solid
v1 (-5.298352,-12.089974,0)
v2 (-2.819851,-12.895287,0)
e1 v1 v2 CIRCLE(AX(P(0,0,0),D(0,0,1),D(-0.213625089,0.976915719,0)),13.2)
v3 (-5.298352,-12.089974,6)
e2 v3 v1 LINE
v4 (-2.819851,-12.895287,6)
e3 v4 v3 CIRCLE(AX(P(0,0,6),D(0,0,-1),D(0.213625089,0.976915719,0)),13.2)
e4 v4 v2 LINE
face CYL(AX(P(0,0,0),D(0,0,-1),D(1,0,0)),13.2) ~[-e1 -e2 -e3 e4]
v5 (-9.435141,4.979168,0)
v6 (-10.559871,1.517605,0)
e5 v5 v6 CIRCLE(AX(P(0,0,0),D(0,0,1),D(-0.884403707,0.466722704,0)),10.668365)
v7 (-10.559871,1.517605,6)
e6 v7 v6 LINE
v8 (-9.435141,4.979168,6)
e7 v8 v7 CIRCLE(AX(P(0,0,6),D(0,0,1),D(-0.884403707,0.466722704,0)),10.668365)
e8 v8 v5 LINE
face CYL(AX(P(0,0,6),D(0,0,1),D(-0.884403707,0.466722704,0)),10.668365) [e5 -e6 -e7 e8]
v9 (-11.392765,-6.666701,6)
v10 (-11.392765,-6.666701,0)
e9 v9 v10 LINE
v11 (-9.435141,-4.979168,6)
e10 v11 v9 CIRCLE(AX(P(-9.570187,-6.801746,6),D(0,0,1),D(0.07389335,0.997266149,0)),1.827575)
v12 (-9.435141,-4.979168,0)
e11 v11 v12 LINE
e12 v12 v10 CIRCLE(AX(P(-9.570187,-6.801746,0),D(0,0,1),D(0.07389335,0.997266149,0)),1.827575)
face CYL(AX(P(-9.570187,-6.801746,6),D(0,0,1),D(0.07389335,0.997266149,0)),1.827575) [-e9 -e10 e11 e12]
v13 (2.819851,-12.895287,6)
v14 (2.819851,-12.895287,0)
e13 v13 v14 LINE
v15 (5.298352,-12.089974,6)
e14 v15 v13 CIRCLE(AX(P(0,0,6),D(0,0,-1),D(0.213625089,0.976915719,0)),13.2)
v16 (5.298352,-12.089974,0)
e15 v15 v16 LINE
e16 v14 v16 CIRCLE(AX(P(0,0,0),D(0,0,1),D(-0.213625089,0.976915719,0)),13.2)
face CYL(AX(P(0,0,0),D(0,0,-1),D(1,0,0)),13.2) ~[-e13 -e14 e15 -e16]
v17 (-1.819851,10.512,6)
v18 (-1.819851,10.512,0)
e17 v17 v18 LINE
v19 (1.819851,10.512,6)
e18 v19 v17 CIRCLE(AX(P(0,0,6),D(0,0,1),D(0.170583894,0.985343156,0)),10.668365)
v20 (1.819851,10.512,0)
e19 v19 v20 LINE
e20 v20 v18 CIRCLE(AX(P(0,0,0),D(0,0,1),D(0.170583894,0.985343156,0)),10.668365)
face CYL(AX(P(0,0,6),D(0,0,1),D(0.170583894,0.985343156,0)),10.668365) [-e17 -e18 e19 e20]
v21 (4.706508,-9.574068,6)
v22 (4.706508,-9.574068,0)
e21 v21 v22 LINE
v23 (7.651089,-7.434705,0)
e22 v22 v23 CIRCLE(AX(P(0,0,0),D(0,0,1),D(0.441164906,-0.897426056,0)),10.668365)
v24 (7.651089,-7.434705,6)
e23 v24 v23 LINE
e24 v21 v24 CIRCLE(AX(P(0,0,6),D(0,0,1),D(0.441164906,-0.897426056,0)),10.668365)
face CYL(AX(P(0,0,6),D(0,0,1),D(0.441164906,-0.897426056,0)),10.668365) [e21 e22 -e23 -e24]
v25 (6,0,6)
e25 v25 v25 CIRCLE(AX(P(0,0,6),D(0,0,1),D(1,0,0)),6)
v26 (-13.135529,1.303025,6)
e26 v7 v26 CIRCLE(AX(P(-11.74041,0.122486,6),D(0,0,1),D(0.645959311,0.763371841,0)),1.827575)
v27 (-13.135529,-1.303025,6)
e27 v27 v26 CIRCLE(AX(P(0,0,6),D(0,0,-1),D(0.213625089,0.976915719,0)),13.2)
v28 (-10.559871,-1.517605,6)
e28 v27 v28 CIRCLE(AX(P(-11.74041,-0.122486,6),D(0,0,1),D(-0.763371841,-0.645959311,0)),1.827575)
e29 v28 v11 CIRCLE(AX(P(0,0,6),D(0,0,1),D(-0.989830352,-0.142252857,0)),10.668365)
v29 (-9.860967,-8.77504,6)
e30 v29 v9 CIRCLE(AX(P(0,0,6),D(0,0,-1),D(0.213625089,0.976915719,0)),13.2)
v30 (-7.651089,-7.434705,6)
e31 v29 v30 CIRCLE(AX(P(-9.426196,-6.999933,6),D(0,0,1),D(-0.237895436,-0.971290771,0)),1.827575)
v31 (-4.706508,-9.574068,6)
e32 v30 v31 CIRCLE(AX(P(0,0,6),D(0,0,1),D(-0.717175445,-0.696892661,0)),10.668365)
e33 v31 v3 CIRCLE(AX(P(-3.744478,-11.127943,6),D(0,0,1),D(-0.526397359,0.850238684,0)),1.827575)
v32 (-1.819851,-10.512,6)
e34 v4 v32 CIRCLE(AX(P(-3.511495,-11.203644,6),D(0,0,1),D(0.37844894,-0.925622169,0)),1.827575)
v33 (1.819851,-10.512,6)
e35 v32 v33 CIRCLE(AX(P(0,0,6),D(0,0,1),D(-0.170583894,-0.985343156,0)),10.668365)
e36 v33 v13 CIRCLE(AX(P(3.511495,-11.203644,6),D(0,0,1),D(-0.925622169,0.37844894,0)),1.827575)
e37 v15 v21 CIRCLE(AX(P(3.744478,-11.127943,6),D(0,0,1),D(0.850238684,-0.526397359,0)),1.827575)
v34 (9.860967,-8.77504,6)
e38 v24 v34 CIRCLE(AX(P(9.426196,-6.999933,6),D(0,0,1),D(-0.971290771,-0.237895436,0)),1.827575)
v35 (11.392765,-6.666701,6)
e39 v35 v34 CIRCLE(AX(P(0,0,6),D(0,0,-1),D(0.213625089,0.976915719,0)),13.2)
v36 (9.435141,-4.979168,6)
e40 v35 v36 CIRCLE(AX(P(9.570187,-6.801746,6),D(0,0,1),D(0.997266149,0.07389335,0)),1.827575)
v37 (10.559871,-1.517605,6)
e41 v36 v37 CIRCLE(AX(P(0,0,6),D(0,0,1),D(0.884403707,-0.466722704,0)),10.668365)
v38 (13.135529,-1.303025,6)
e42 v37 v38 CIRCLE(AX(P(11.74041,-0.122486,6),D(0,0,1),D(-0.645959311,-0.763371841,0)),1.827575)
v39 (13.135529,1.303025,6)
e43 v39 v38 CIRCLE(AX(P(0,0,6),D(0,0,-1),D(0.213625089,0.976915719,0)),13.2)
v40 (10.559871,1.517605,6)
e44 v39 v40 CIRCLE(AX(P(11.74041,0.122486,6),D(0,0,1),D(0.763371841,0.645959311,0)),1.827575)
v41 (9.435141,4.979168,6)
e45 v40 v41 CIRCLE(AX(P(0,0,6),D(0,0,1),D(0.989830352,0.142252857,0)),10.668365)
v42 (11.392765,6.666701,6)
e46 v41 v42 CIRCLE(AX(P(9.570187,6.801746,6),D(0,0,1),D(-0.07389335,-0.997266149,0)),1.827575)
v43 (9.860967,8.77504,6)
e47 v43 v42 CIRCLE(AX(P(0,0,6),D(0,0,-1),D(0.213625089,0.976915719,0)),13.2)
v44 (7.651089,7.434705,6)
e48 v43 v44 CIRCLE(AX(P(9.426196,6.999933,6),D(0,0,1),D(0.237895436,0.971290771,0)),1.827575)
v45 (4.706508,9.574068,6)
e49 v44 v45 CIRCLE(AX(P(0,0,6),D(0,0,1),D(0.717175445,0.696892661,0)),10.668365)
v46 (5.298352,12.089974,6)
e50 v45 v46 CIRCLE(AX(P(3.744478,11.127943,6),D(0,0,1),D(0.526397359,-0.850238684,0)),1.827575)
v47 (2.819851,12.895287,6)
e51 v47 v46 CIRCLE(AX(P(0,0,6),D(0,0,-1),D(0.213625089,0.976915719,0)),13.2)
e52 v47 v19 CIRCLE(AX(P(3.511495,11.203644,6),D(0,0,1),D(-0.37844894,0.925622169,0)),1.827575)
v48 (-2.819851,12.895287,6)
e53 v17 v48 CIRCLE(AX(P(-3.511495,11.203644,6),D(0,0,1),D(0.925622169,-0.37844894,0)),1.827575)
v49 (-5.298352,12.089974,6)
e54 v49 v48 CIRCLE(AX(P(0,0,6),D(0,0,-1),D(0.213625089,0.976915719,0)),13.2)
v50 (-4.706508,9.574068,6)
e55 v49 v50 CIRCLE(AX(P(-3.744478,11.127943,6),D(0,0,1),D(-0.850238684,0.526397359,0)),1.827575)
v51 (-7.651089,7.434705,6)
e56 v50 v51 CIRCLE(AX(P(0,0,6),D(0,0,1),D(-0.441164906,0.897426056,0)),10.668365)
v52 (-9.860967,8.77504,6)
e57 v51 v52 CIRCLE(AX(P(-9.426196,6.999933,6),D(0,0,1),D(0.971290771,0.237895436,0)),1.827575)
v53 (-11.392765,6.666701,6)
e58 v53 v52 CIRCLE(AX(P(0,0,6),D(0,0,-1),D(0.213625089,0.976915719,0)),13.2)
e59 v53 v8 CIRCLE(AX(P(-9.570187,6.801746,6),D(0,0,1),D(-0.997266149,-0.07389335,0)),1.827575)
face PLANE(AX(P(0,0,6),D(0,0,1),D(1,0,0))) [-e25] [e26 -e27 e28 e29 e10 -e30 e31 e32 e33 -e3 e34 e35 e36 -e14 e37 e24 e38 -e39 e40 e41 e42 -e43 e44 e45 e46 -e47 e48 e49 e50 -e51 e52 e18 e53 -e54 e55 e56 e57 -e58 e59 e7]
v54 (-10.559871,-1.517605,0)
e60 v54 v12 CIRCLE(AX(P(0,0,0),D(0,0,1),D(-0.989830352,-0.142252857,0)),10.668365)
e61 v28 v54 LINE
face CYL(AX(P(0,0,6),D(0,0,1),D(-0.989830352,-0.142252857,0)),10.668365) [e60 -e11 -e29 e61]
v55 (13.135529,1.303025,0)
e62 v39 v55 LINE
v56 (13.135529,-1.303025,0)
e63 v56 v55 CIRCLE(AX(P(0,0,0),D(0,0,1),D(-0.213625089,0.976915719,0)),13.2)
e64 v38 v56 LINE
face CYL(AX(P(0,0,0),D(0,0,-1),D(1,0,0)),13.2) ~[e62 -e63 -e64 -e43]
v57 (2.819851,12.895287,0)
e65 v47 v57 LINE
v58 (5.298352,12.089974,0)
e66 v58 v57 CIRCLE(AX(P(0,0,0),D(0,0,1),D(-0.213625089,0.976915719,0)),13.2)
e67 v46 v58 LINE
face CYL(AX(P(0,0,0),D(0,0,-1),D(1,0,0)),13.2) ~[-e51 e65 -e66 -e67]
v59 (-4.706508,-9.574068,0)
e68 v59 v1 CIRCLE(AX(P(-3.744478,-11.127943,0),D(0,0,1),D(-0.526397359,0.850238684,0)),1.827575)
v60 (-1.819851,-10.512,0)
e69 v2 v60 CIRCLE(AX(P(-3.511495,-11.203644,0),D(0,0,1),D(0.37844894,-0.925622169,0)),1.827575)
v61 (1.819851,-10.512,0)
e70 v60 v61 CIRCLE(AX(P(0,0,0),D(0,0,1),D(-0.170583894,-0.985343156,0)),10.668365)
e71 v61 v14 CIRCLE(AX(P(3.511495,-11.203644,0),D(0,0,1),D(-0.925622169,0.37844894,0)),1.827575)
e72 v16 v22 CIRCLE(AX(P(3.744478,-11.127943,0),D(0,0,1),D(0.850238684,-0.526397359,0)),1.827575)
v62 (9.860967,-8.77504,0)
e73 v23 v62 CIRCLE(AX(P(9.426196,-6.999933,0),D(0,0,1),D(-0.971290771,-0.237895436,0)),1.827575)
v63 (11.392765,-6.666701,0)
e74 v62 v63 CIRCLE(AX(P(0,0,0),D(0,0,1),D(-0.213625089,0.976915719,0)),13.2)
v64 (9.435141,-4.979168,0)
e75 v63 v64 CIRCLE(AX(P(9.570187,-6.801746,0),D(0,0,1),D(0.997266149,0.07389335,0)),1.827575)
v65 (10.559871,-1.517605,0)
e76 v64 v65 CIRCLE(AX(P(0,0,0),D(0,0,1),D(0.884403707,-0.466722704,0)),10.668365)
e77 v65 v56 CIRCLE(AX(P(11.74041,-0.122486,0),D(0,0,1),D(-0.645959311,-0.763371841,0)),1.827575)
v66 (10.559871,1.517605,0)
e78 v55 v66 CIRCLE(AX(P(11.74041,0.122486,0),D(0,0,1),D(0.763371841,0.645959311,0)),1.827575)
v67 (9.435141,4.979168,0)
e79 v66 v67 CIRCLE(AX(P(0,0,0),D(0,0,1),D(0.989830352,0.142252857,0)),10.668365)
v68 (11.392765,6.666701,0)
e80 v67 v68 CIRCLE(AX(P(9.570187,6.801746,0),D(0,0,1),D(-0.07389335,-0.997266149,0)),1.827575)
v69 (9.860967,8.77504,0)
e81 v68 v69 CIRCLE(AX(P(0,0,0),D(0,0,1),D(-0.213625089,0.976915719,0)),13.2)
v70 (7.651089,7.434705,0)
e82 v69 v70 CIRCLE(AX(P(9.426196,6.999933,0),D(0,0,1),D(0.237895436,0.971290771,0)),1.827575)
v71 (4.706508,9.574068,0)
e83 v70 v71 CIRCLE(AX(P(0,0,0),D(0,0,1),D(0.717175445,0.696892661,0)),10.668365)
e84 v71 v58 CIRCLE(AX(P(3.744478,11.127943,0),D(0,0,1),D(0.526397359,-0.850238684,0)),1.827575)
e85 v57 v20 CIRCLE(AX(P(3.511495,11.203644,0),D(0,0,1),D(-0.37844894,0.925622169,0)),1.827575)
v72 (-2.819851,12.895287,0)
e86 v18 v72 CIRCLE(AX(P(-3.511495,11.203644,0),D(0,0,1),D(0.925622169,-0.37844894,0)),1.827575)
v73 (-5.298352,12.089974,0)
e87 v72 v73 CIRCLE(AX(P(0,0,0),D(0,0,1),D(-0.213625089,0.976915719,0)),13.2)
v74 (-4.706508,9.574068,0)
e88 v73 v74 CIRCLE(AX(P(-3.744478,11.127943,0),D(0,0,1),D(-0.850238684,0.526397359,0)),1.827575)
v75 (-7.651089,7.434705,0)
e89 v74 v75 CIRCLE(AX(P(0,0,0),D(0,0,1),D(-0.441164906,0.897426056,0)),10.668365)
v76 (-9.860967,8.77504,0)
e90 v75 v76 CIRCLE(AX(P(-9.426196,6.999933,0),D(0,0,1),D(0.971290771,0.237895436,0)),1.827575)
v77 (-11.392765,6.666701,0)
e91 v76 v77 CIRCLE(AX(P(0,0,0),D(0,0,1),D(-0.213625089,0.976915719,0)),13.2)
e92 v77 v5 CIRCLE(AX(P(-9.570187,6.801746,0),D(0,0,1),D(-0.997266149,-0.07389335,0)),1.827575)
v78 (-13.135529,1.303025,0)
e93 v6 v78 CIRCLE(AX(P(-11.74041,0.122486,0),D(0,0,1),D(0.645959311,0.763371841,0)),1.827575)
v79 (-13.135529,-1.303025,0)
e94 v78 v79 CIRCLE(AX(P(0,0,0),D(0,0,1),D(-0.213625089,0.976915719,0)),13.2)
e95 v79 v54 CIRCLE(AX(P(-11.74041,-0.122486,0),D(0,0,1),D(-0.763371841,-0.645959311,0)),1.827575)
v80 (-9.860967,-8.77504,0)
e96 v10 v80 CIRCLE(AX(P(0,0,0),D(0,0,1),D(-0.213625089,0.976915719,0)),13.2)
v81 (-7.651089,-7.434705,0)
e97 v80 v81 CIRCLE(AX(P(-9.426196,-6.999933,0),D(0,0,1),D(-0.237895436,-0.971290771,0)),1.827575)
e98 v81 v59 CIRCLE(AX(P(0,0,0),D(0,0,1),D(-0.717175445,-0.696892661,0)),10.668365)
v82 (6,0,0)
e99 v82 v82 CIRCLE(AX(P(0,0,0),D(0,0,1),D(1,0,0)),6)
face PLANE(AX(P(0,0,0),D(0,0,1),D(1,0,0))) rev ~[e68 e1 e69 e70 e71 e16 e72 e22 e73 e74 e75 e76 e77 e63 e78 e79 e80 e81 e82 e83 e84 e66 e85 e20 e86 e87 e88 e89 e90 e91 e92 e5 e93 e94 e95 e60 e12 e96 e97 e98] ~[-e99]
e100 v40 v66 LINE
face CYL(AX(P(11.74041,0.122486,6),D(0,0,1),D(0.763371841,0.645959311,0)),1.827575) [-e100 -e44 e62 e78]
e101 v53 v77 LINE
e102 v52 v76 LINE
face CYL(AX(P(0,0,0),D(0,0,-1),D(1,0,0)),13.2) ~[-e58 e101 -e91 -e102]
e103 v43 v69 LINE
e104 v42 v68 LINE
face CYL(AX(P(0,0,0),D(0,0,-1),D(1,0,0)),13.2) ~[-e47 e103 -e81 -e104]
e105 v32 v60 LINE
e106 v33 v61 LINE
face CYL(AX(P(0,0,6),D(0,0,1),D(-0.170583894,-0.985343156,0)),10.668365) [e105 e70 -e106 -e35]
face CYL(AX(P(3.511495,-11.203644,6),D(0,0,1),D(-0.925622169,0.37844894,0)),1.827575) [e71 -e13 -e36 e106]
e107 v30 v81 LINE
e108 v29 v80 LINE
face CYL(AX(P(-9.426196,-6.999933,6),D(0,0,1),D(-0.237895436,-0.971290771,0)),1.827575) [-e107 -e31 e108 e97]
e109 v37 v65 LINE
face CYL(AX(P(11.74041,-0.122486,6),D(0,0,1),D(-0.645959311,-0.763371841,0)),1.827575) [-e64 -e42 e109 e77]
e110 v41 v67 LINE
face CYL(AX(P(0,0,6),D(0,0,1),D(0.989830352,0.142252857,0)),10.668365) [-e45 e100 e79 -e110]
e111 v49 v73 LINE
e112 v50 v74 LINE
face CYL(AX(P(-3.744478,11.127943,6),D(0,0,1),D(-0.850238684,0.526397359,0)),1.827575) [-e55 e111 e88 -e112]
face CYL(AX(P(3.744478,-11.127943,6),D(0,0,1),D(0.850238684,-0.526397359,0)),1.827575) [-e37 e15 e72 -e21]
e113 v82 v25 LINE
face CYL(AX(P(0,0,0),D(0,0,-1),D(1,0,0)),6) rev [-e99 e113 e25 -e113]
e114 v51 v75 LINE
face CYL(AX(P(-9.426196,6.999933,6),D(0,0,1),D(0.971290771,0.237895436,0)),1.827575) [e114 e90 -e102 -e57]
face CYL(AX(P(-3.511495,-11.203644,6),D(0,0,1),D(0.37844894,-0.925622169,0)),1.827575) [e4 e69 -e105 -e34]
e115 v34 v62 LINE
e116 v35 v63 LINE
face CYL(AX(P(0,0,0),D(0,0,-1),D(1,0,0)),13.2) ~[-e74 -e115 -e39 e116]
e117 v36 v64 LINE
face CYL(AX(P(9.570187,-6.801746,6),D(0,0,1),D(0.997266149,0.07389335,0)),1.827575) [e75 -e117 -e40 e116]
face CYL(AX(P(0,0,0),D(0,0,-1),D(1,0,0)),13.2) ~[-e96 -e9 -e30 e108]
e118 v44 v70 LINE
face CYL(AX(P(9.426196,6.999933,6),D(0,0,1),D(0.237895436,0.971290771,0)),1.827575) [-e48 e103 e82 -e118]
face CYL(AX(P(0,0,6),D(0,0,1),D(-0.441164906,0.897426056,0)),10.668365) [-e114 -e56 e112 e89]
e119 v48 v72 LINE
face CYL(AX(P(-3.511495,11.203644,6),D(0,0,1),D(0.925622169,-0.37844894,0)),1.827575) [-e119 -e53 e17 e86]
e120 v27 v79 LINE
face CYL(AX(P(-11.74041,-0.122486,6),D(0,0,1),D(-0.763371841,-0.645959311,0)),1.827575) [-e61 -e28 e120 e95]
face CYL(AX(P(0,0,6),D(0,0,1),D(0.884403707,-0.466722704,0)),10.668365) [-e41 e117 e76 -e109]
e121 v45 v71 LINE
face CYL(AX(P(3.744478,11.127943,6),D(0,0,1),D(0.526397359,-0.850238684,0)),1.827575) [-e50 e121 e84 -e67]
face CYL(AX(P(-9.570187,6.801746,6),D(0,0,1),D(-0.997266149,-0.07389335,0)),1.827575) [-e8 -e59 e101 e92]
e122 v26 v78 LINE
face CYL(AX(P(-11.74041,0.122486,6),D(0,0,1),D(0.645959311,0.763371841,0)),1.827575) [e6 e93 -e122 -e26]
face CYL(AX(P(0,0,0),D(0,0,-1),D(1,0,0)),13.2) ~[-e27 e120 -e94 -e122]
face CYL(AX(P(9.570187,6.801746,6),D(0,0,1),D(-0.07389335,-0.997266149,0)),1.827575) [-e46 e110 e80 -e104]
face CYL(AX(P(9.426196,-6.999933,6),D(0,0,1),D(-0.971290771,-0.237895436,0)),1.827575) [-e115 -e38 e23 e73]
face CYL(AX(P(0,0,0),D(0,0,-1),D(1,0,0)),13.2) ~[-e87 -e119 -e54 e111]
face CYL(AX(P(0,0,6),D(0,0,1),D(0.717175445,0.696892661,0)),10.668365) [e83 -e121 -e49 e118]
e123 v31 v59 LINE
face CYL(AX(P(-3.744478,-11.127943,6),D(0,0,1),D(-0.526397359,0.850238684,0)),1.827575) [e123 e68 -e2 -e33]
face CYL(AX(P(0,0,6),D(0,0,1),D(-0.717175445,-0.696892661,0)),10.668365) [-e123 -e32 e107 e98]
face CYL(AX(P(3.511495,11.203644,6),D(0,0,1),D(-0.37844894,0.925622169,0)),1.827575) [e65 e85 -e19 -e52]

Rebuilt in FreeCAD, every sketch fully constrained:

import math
import FreeCAD as App
import Part
import Sketcher

V = App.Vector
Q = App.Units.Quantity

doc = App.newDocument("Part")
body = doc.addObject("PartDesign::Body", "Body")

sketch1 = body.newObject("Sketcher::SketchObject", "Sketch")
sketch1.AttachmentSupport = (doc.getObject("XY_Plane"), [""])
sketch1.MapMode = "FlatFace"
sketch1.addGeometry(Part.Circle(V(0, 0, 0), V(0, 0, 1), 13.2), False)
sketch1.addGeometry(Part.Circle(V(0, 0, 0), V(0, 0, 1), 6), False)
sketch1.addConstraint(Sketcher.Constraint("Coincident", 0, 3, -1, 1))
sketch1.addConstraint(Sketcher.Constraint("Coincident", 1, 3, -1, 1))
sketch1.addConstraint(Sketcher.Constraint("Diameter", 1, Q("12 mm")))
sketch1.addConstraint(Sketcher.Constraint("Diameter", 0, Q("26.4 mm")))
pad1 = body.newObject("PartDesign::Pad", "Pad")
pad1.Profile = sketch1
pad1.Length = 6

sketch2 = body.newObject("Sketcher::SketchObject", "Sketch001")
sketch2.AttachmentSupport = (doc.getObject("XY_Plane"), [""])
sketch2.MapMode = "FlatFace"
sketch2.AttachmentOffset = App.Placement(V(0, 0, 6), App.Rotation())
sketch2.addGeometry(Part.ArcOfCircle(Part.Circle(V(0, 0, 0), V(0, 0, 1), 13.2), math.radians(77.665123), math.radians(102.334877)), False)
sketch2.addGeometry(Part.ArcOfCircle(Part.Circle(V(-3.511495, 11.203644, 0), V(0, 0, 1), 1.827575), math.radians(-22.23764), math.radians(67.762361)), False)
sketch2.addGeometry(Part.ArcOfCircle(Part.Circle(V(0, 0, 0), V(0, 0, 1), 10.668365), math.radians(80.17823), math.radians(99.82177)), False)
sketch2.addGeometry(Part.ArcOfCircle(Part.Circle(V(3.511495, 11.203644, 0), V(0, 0, 1), 1.827575), math.radians(112.237639), math.radians(202.23764)), False)
sketch2.addConstraint(Sketcher.Constraint("Coincident", 0, 2, 1, 2))
sketch2.addConstraint(Sketcher.Constraint("Coincident", 1, 1, 2, 2))
sketch2.addConstraint(Sketcher.Constraint("Coincident", 2, 1, 3, 2))
sketch2.addConstraint(Sketcher.Constraint("Coincident", 3, 1, 0, 1))
sketch2.addConstraint(Sketcher.Constraint("Coincident", 0, 3, -1, 1))
sketch2.addConstraint(Sketcher.Constraint("Coincident", 2, 3, -1, 1))
sketch2.addConstraint(Sketcher.Constraint("Equal", 1, 3))
sketch2.addConstraint(Sketcher.Constraint("Symmetric", 1, 3, 3, 3, -2))
sketch2.addConstraint(Sketcher.Constraint("Radius", 0, Q("13.2 mm")))
sketch2.addConstraint(Sketcher.Constraint("DistanceX", 0, 2, 1, 1, Q("1 mm")))
sketch2.addConstraint(Sketcher.Constraint("DistanceY", -1, 1, 1, 1, Q("10.512 mm")))
sketch2.addConstraint(Sketcher.Constraint("Radius", 1, Q("1.827575 mm")))
sketch2.addConstraint(Sketcher.Constraint("Radius", 2, Q("10.668365 mm")))
pocket1 = body.newObject("PartDesign::Pocket", "Pocket")
pocket1.Profile = sketch2
pocket1.Type = "ThroughAll"
doc.recompute()

polarpattern = body.newObject("PartDesign::PolarPattern", "PolarPattern")
polarpattern.Originals = [pocket1]
polarpattern.Axis = (doc.getObject("Z_Axis"), [""])
polarpattern.Angle = 360
polarpattern.Occurrences = 10
body.Tip = polarpattern

doc.recompute()
